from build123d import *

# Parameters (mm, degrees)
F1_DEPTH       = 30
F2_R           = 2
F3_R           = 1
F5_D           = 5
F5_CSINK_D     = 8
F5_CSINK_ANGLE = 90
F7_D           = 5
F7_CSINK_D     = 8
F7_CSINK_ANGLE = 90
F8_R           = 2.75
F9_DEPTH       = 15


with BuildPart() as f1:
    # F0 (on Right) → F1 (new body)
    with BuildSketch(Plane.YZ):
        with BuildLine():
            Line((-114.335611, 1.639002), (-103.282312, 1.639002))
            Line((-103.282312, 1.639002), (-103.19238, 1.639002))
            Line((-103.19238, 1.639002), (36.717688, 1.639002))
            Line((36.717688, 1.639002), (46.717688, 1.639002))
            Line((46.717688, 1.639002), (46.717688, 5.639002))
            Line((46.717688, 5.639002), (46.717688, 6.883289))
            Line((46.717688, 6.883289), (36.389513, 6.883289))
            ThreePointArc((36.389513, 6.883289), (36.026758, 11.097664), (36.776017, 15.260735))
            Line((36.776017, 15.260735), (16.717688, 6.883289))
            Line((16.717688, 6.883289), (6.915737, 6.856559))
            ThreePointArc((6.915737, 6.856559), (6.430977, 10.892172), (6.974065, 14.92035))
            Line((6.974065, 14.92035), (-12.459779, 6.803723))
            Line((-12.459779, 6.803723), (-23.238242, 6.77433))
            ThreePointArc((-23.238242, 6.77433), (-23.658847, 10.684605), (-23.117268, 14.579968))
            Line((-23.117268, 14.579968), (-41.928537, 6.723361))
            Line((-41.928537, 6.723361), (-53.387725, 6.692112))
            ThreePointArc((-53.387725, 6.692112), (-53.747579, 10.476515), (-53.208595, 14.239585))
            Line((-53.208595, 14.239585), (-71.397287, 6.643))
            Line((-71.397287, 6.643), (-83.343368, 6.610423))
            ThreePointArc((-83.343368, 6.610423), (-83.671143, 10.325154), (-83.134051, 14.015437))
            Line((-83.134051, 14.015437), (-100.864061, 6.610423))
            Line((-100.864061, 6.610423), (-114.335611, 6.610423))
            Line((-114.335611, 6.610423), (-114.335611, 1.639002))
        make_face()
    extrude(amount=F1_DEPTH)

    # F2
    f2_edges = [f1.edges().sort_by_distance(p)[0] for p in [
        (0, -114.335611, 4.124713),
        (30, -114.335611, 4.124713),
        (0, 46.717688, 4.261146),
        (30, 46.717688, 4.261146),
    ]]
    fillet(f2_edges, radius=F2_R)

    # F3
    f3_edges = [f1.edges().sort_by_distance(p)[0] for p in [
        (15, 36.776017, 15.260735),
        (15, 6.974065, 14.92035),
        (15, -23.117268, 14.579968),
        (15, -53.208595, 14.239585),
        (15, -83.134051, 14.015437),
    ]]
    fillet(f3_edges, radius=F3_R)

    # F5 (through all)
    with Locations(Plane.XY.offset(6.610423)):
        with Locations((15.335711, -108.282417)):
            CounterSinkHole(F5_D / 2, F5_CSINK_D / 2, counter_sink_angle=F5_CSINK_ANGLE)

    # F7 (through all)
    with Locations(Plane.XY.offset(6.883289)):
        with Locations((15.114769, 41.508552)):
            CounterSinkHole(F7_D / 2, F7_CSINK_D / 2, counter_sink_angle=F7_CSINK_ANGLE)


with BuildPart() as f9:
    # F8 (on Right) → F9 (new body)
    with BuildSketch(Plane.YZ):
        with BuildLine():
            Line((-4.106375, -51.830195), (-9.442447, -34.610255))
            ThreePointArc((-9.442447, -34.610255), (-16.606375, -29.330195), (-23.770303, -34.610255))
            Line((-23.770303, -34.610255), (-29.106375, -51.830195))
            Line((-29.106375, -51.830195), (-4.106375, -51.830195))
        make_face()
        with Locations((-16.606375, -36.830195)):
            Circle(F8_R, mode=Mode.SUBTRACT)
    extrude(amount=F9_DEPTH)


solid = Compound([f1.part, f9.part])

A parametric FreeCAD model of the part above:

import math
import FreeCAD as App
import Part
import Sketcher


def edges_at(feature, points):
    """Names of the edges that pass closest to the given points."""
    edges = feature.Shape.Edges
    near = lambda p: min(range(len(edges)), key=lambda i: edges[i].distToShape(Part.Vertex(*p))[0])
    return sorted({f"Edge{near(p) + 1}" for p in points})

doc = App.newDocument("Part")
body = doc.addObject("PartDesign::Body", "Body")

# Sketch on YZ plane
sketch1 = body.newObject("Sketcher::SketchObject", "Sketch")
sketch1.AttachmentSupport = (doc.getObject("YZ_Plane"), [""])
sketch1.MapMode = "FlatFace"
sketch1.addGeometry([
    Part.LineSegment(App.Vector(-114.335611, 1.639002, 0), App.Vector(46.717688, 1.639002, 0)),  # 0
    Part.LineSegment(App.Vector(46.717688, 1.639002, 0), App.Vector(46.717688, 6.883289, 0)),  # 1
    Part.LineSegment(App.Vector(46.717688, 6.883289, 0), App.Vector(36.389513, 6.883289, 0)),  # 2
    Part.ArcOfCircle(Part.Circle(App.Vector(52.082801, 10.356898, 0), App.Vector(0, 0, 1), 16.073122), math.radians(162.236092), math.radians(192.480828)),  # 3
    Part.LineSegment(App.Vector(36.776017, 15.260735, 0), App.Vector(16.717688, 6.883289, 0)),  # 4
    Part.LineSegment(App.Vector(16.717688, 6.883289, 0), App.Vector(6.915737, 6.856559, 0)),  # 5
    Part.ArcOfCircle(Part.Circle(App.Vector(22.503683, 10.775913, 0), App.Vector(0, 0, 1), 16.073127), math.radians(165.057542), math.radians(194.113595)),  # 6
    Part.LineSegment(App.Vector(6.974065, 14.92035, 0), App.Vector(-12.459779, 6.803723, 0)),  # 7
    Part.LineSegment(App.Vector(-12.459779, 6.803723, 0), App.Vector(-23.238242, 6.77433, 0)),  # 8
    Part.ArcOfCircle(Part.Circle(App.Vector(-7.587653, 10.435529, 0), App.Vector(0, 0, 1), 16.073124), math.radians(165.057533), math.radians(193.166637)),  # 9
    Part.LineSegment(App.Vector(-23.117268, 14.579968, 0), App.Vector(-41.928537, 6.723361, 0)),  # 10
    Part.LineSegment(App.Vector(-41.928537, 6.723361, 0), App.Vector(-53.387725, 6.692112, 0)),  # 11
    Part.ArcOfCircle(Part.Circle(App.Vector(-37.678983, 10.095147, 0), App.Vector(0, 0, 1), 16.073121), math.radians(165.057531), math.radians(192.223289)),  # 12
    Part.LineSegment(App.Vector(-53.208595, 14.239585, 0), App.Vector(-71.397287, 6.643, 0)),  # 13
    Part.LineSegment(App.Vector(-71.397287, 6.643, 0), App.Vector(-83.343368, 6.610423, 0)),  # 14
    Part.ArcOfCircle(Part.Circle(App.Vector(-67.604446, 9.870997, 0), App.Vector(0, 0, 1), 16.073115), math.radians(165.057521), math.radians(191.70419)),  # 15
    Part.LineSegment(App.Vector(-83.134051, 14.015437, 0), App.Vector(-100.864061, 6.610423, 0)),  # 16
    Part.LineSegment(App.Vector(-100.864061, 6.610423, 0), App.Vector(-114.335611, 6.610423, 0)),  # 17
    Part.LineSegment(App.Vector(-114.335611, 6.610423, 0), App.Vector(-114.335611, 1.639002, 0)),  # 18
], False)
sketch1.addConstraint([
    Sketcher.Constraint("Coincident", 0, 2, 1, 1),
    Sketcher.Constraint("Coincident", 1, 2, 2, 1),
    Sketcher.Constraint("Coincident", 2, 2, 3, 2),
    Sketcher.Constraint("Coincident", 3, 1, 4, 1),
    Sketcher.Constraint("Coincident", 4, 2, 5, 1),
    Sketcher.Constraint("Coincident", 5, 2, 6, 2),
    Sketcher.Constraint("Coincident", 6, 1, 7, 1),
    Sketcher.Constraint("Coincident", 7, 2, 8, 1),
    Sketcher.Constraint("Coincident", 8, 2, 9, 2),
    Sketcher.Constraint("Coincident", 9, 1, 10, 1),
    Sketcher.Constraint("Coincident", 10, 2, 11, 1),
    Sketcher.Constraint("Coincident", 11, 2, 12, 2),
    Sketcher.Constraint("Coincident", 12, 1, 13, 1),
    Sketcher.Constraint("Coincident", 13, 2, 14, 1),
    Sketcher.Constraint("Coincident", 14, 2, 15, 2),
    Sketcher.Constraint("Coincident", 15, 1, 16, 1),
    Sketcher.Constraint("Coincident", 16, 2, 17, 1),
    Sketcher.Constraint("Coincident", 17, 2, 18, 1),
    Sketcher.Constraint("Coincident", 18, 2, 0, 1),
    Sketcher.Constraint("Horizontal", 0),
    Sketcher.Constraint("Vertical", 1),
    Sketcher.Constraint("Horizontal", 2),
    Sketcher.Constraint("Horizontal", 17),
    Sketcher.Constraint("Vertical", 18),
    Sketcher.Constraint("DistanceX", 4, 2, 1, 2, 30.0),
    Sketcher.Constraint("Radius", 3, 16.073122),
    Sketcher.Constraint("Radius", 12, 16.073121),
    Sketcher.Constraint("DistanceX", 0, 1, 0, 2, 161.053299),
    Sketcher.Constraint("DistanceY", -1, 1, 13, 2, 6.643),
    Sketcher.Constraint("Radius", 6, 16.073127),
    Sketcher.Constraint("Radius", 9, 16.073124),
    Sketcher.Constraint("Radius", 15, 16.073115),
    Sketcher.Constraint("DistanceX", 17, 2, 17, 1, 13.47155),
    Sketcher.Constraint("DistanceY", 18, 2, 18, 1, 4.971421),
    Sketcher.Constraint("DistanceX", -1, 1, 3, 3, 52.082801),
    Sketcher.Constraint("DistanceY", -1, 1, 3, 3, 10.356898),
    Sketcher.Constraint("DistanceY", 15, 3, 3, 3, 0.485901),
    Sketcher.Constraint("DistanceY", 8, 2, 9, 3, 3.661199),
    Sketcher.Constraint("Distance", 7, 21.06072),
    Sketcher.Constraint("Distance", 11, 11.459231),
    Sketcher.Constraint("DistanceX", 2, 2, 2, 1, 10.328175),
    Sketcher.Constraint("DistanceY", 1, 1, 1, 2, 5.244287),
    Sketcher.Constraint("DistanceY", -1, 1, 9, 3, 10.435529),
    Sketcher.Constraint("DistanceX", -1, 1, 0, 2, 46.717688),
    Sketcher.Constraint("DistanceY", -1, 1, 4, 2, 6.883289),
    Sketcher.Constraint("DistanceY", -1, 1, 5, 2, 6.856559),
    Sketcher.Constraint("DistanceY", -1, 1, 6, 1, 14.92035),
    Sketcher.Constraint("DistanceX", 7, 2, -1, 1, 12.459779),
    Sketcher.Constraint("DistanceX", 8, 2, -1, 1, 23.238242),
    Sketcher.Constraint("DistanceY", -1, 1, 10, 2, 6.723361),
    Sketcher.Constraint("DistanceX", 14, 2, -1, 1, 83.343368),
    Sketcher.Constraint("DistanceX", 15, 1, -1, 1, 83.134051),
    Sketcher.Constraint("DistanceX", 12, 3, 9, 3, 30.09133),
    Sketcher.Constraint("DistanceY", 12, 3, 3, 3, 0.261752),
    Sketcher.Constraint("DistanceX", 15, 3, 6, 3, 90.108129),
    Sketcher.Constraint("DistanceY", 0, 2, 6, 3, 9.136911),
    Sketcher.Constraint("DistanceX", 6, 3, 2, 2, 13.88583),
    Sketcher.Constraint("DistanceX", 3, 1, 1, 2, 9.941671),
    Sketcher.Constraint("DistanceX", 9, 1, 7, 2, 10.657489),
    Sketcher.Constraint("DistanceX", 10, 2, 9, 1, 18.811269),
    Sketcher.Constraint("DistanceX", 11, 2, 12, 1, 0.17913),
    Sketcher.Constraint("DistanceX", 13, 2, 15, 3, 3.792841),
])
pad1 = body.newObject("PartDesign::Pad", "Pad")
pad1.Profile = sketch1
pad1.Length = 30
doc.recompute()

fillet = body.newObject("PartDesign::Fillet", "Fillet")
fillet.Base = (pad1, edges_at(pad1, [
    (0, -114.336, 4.125),
    (30, -114.336, 4.125),
    (0, 46.718, 4.261),
    (30, 46.718, 4.261),
]))
fillet.Radius = 2
doc.recompute()

fillet2 = body.newObject("PartDesign::Fillet", "Fillet001")
fillet2.Base = (fillet, edges_at(fillet, [
    (15, 36.776, 15.261),
    (15, 6.974, 14.92),
    (15, -23.117, 14.58),
    (15, -53.209, 14.24),
    (15, -83.134, 14.015),
]))
fillet2.Radius = 1

# Sketch on XY plane
sketch2 = body.newObject("Sketcher::SketchObject", "Sketch001")
sketch2.AttachmentSupport = (doc.getObject("XY_Plane"), [""])
sketch2.MapMode = "FlatFace"
sketch2.AttachmentOffset = App.Placement(App.Vector(0, 0, 6.610423), App.Rotation())
sketch2.addGeometry(Part.Circle(App.Vector(15.3, -108.3, 0), App.Vector(0, 0, 1), 2.5), False)
sketch2.addConstraint([
    Sketcher.Constraint("Diameter", 0, 5.0),
    Sketcher.Constraint("DistanceX", -1, 1, 0, 3, 15.335711),
    Sketcher.Constraint("DistanceY", 0, 3, -1, 1, 108.282417),
])
doc.recompute()
hole = body.newObject("PartDesign::Hole", "Hole")
hole.Profile = sketch2
hole.ThreadType = "None"
hole.Diameter = 5
hole.DepthType = "ThroughAll"
hole.HoleCutType = "Countersink"
hole.HoleCutDiameter = 8
hole.HoleCutCountersinkAngle = 90

# Sketch on XY plane
sketch3 = body.newObject("Sketcher::SketchObject", "Sketch002")
sketch3.AttachmentSupport = (doc.getObject("XY_Plane"), [""])
sketch3.MapMode = "FlatFace"
sketch3.AttachmentOffset = App.Placement(App.Vector(0, 0, 6.883289), App.Rotation())
sketch3.addGeometry(Part.Circle(App.Vector(15.1, 41.5, 0), App.Vector(0, 0, 1), 2.5), False)
sketch3.addConstraint([
    Sketcher.Constraint("Diameter", 0, 5.0),
    Sketcher.Constraint("DistanceX", -1, 1, 0, 3, 15.114769),
    Sketcher.Constraint("DistanceY", -1, 1, 0, 3, 41.508552),
])
doc.recompute()
hole2 = body.newObject("PartDesign::Hole", "Hole001")
hole2.Profile = sketch3
hole2.ThreadType = "None"
hole2.Diameter = 5
hole2.DepthType = "ThroughAll"
hole2.HoleCutType = "Countersink"
hole2.HoleCutDiameter = 8
hole2.HoleCutCountersinkAngle = 90
body2 = doc.addObject("PartDesign::Body", "Body001")

# Sketch on YZ plane
sketch4 = body2.newObject("Sketcher::SketchObject", "Sketch003")
sketch4.AttachmentSupport = (doc.getObject("YZ_Plane001"), [""])
sketch4.MapMode = "FlatFace"
sketch4.addGeometry([
    Part.LineSegment(App.Vector(-4.1, -51.8, 0), App.Vector(-9.4, -34.6, 0)),  # 0
    Part.ArcOfCircle(Part.Circle(App.Vector(-16.6, -36.8, 0), App.Vector(0, 0, 1), 7.5), math.radians(17), math.radians(163)),  # 1
    Part.LineSegment(App.Vector(-23.8, -34.6, 0), App.Vector(-29.1, -51.8, 0)),  # 2
    Part.LineSegment(App.Vector(-29.1, -51.8, 0), App.Vector(-4.1, -51.8, 0)),  # 3
    Part.Circle(App.Vector(-16.6, -36.8, 0), App.Vector(0, 0, 1), 2.8),  # 4
], False)
sketch4.addConstraint([
    Sketcher.Constraint("Tangent", 0, 2, 1, 1),
    Sketcher.Constraint("Tangent", 1, 2, 2, 1),
    Sketcher.Constraint("Coincident", 2, 2, 3, 1),
    Sketcher.Constraint("Coincident", 3, 2, 0, 1),
    Sketcher.Constraint("Horizontal", 3),
    Sketcher.Constraint("Coincident", 4, 3, 1, 3),
    Sketcher.Constraint("Horizontal", 0, 2, 1, 2),
    Sketcher.Constraint("Diameter", 4, 5.5),
    Sketcher.Constraint("Radius", 1, 7.5),
    Sketcher.Constraint("DistanceX", 3, 1, 3, 2, 25.0),
    Sketcher.Constraint("DistanceY", 2, 2, 4, 3, 15.0),
    Sketcher.Constraint("DistanceX", 1, 3, -1, 1, 16.606375),
    Sketcher.Constraint("DistanceY", 1, 3, -1, 1, 36.830195),
])
pad2 = body2.newObject("PartDesign::Pad", "Pad001")
pad2.Profile = sketch4
pad2.Length = 15

doc.recompute()
